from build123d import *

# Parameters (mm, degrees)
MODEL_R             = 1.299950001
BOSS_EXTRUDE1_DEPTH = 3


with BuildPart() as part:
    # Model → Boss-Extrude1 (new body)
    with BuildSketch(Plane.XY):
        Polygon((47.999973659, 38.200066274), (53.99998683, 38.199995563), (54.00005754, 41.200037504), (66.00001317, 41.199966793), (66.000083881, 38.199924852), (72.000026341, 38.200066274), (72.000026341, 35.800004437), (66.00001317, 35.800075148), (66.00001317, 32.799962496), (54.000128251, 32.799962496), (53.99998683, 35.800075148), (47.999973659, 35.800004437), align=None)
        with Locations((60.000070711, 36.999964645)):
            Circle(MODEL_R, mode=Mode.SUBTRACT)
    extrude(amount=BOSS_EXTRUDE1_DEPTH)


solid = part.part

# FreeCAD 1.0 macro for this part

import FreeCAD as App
import Part
import Sketcher


def add_polygon(sketch, points):
    """Adds a closed chain of lines whose ends are joined by coincident constraints."""
    first, n = sketch.GeometryCount, len(points)
    for a, b in zip(points, points[1:] + points[:1]):
        sketch.addGeometry(Part.LineSegment(App.Vector(*a, 0), App.Vector(*b, 0)), False)
    for i in range(n):
        sketch.addConstraint(Sketcher.Constraint("Coincident", first + i, 2, first + (i + 1) % n, 1))

doc = App.newDocument("Part")
body = doc.addObject("PartDesign::Body", "Body")

# Sketch on XY plane
sketch1 = doc.addObject("Sketcher::SketchObject", "Sketch")
body.addObject(sketch1)
sketch1.AttachmentSupport = (doc.XY_Plane, [""])
sketch1.MapMode = "FlatFace"
add_polygon(sketch1, [(53.999987, 38.199996), (47.999974, 38.200066), (47.999974, 35.800004), (53.999987, 35.800075), (54.000128, 32.799962), (66.000013, 32.799962), (66.000013, 35.800075), (72.000026, 35.800004), (72.000026, 38.200066), (66.000084, 38.199925), (66.000013, 41.199967), (54.000058, 41.200038)])  # lines 0-11
sketch1.addGeometry(Part.Circle(App.Vector(60.000071, 36.999965, 0), App.Vector(0, 0, 1), 1.29995), False)  # 12
sketch1.addConstraint([
    Sketcher.Constraint("Vertical", 1),
    Sketcher.Constraint("Horizontal", 4),
    Sketcher.Constraint("Vertical", 5),
    Sketcher.Constraint("Vertical", 7),
    Sketcher.Constraint("Parallel", 0, 6),
    Sketcher.Constraint("Perpendicular", 8, 9),
    Sketcher.Constraint("Horizontal", 2, 2, 5, 2),
    Sketcher.Constraint("Horizontal", 1, 2, 6, 2),
    Sketcher.Constraint("Horizontal", 0, 2, 7, 2),
    Sketcher.Constraint("Vertical", 5, 2, 9, 2),
    Sketcher.Constraint("Vertical", 2, 2, 11, 2),
    Sketcher.Constraint("Equal", 2, 6),
    Sketcher.Constraint("Equal", 9, 11),
    Sketcher.Constraint("Diameter", 12, 2.5999),
    Sketcher.Constraint("DistanceY", 1, 2, 1, 1, 2.400062),
    Sketcher.Constraint("DistanceY", 12, 3, 0, 2, 1.200102),
    Sketcher.Constraint("DistanceX", 3, 2, 6, 2, 17.999898),
    Sketcher.Constraint("DistanceY", 7, 2, 9, 2, 2.999901),
    Sketcher.Constraint("Distance", 9, 3.000042),
    Sketcher.Constraint("DistanceX", 4, 1, 4, 2, 11.999885),
    Sketcher.Constraint("DistanceY", 5, 1, 5, 2, 3.000113),
    Sketcher.Constraint("DistanceX", -1, 1, 12, 3, 60.000071),
    Sketcher.Constraint("DistanceX", -1, 1, 3, 2, 54.000128),
    Sketcher.Constraint("DistanceY", 2, 2, 12, 3, 1.199889),
    Sketcher.Constraint("DistanceX", 2, 2, 3, 2, 0.000141),
    Sketcher.Constraint("Distance", 10, 11.999956),
    Sketcher.Constraint("DistanceY", -1, 1, 12, 3, 36.999965),
])
pad1 = doc.addObject("PartDesign::Pad", "Pad")
body.addObject(pad1)
pad1.Profile = sketch1
pad1.Length = 3

doc.recompute()
